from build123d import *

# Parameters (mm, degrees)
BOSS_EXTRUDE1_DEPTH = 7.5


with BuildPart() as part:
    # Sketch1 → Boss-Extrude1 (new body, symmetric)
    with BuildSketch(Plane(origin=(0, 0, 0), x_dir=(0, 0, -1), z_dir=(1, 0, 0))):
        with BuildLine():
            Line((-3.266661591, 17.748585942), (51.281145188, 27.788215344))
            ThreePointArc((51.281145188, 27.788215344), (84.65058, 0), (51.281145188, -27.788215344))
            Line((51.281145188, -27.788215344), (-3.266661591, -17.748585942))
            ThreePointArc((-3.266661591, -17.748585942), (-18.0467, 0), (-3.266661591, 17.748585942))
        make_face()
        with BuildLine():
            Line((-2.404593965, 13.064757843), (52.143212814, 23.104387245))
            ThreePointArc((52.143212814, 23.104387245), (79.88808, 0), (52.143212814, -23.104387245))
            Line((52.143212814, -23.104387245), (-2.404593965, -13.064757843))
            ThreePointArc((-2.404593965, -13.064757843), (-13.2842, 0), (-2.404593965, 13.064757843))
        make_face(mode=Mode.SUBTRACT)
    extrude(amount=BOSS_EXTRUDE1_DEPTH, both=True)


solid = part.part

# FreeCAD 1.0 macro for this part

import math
import FreeCAD as App
import Part
import Sketcher
from FreeCAD import Vector
Q = App.Units.Quantity

doc = App.newDocument("Part")
body = doc.addObject("PartDesign::Body", "Body")

sketch1 = body.newObject("Sketcher::SketchObject", "Sketch")
sketch1.AttachmentSupport = (doc.getObject("YZ_Plane"), [""])
sketch1.MapMode = "FlatFace"
sketch1.addGeometry([
    Part.LineSegment(Vector(28, -51, 0), Vector(18, 3, 0)),
    Part.ArcOfCircle(Part.Circle(Vector(0, 0, 0), Vector(0, 0, 1), 18), math.radians(10), math.radians(170)),
    Part.LineSegment(Vector(-18, 3, 0), Vector(-28, -51, 0)),
    Part.ArcOfCircle(Part.Circle(Vector(0, -56, 0), Vector(0, 0, 1), 28), math.radians(170), math.radians(370)),
    Part.LineSegment(Vector(13, 2, 0), Vector(23, -52, 0)),
    Part.ArcOfCircle(Part.Circle(Vector(0, -56, 0), Vector(0, 0, 1), 23), math.radians(170), math.radians(370)),
    Part.LineSegment(Vector(-23, -52, 0), Vector(-13, 2, 0)),
    Part.ArcOfCircle(Part.Circle(Vector(0, 0, 0), Vector(0, 0, 1), 13), math.radians(10), math.radians(170)),
], False)
sketch1.addConstraint([
    Sketcher.Constraint("Tangent", 0, 2, 1, 1),
    Sketcher.Constraint("Tangent", 1, 2, 2, 1),
    Sketcher.Constraint("Tangent", 2, 2, 3, 1),
    Sketcher.Constraint("Tangent", 3, 2, 0, 1),
    Sketcher.Constraint("Tangent", 4, 2, 5, 2),
    Sketcher.Constraint("Tangent", 5, 1, 6, 1),
    Sketcher.Constraint("Tangent", 6, 2, 7, 2),
    Sketcher.Constraint("Tangent", 7, 1, 4, 1),
    Sketcher.Constraint("Coincident", 1, 3, -1, 1),
    Sketcher.Constraint("Coincident", 7, 3, -1, 1),
    Sketcher.Constraint("Coincident", 5, 3, 3, 3),
    Sketcher.Constraint("PointOnObject", 3, 3, -2),
    Sketcher.Constraint("Parallel", 0, 4),
    Sketcher.Constraint("Radius", 7, Q("0.523 in")),
    Sketcher.Constraint("Radius", 1, Q("0.7105 in")),
    Sketcher.Constraint("Radius", 3, Q("1.1124 in")),
    Sketcher.Constraint("DistanceY", 3, 3, -1, 1, Q("2.2203 in")),
])
pad1 = body.newObject("PartDesign::Pad", "Pad")
pad1.Profile = sketch1
pad1.Length = 15
pad1.Midplane = True

doc.recompute()
